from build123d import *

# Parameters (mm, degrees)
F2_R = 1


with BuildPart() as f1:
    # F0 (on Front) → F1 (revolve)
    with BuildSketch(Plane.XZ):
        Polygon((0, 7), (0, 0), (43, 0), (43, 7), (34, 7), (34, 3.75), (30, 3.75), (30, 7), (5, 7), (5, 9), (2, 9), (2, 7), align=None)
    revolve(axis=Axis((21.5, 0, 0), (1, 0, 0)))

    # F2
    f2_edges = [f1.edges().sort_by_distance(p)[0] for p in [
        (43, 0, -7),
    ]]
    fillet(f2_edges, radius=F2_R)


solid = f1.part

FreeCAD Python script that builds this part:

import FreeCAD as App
import Part
import Sketcher
from FreeCAD import Vector


def edges_at(feature, points):
    """Names of the edges that pass closest to the given points."""
    edges = feature.Shape.Edges
    near = lambda p: min(range(len(edges)), key=lambda i: edges[i].distToShape(Part.Vertex(*p))[0])
    return sorted({f"Edge{near(p) + 1}" for p in points})

doc = App.newDocument("Part")
body = doc.addObject("PartDesign::Body", "Body")

# Sketch on XZ plane
sketch1 = doc.addObject("Sketcher::SketchObject", "Sketch")
body.addObject(sketch1)
sketch1.AttachmentSupport = (doc.XZ_Plane, [""])
sketch1.MapMode = "FlatFace"
sketch1.addGeometry([
    Part.LineSegment(Vector(0, 7, 0), Vector(0, 0, 0)),  # 0
    Part.LineSegment(Vector(0, 0, 0), Vector(43, 0, 0)),  # 1
    Part.LineSegment(Vector(43, 0, 0), Vector(43, 7, 0)),  # 2
    Part.LineSegment(Vector(43, 7, 0), Vector(34, 7, 0)),  # 3
    Part.LineSegment(Vector(34, 7, 0), Vector(34, 3.8, 0)),  # 4
    Part.LineSegment(Vector(34, 3.8, 0), Vector(30, 3.8, 0)),  # 5
    Part.LineSegment(Vector(30, 3.8, 0), Vector(30, 7, 0)),  # 6
    Part.LineSegment(Vector(30, 7, 0), Vector(5, 7, 0)),  # 7
    Part.LineSegment(Vector(5, 7, 0), Vector(5, 9, 0)),  # 8
    Part.LineSegment(Vector(5, 9, 0), Vector(2, 9, 0)),  # 9
    Part.LineSegment(Vector(2, 9, 0), Vector(2, 7, 0)),  # 10
    Part.LineSegment(Vector(2, 7, 0), Vector(0, 7, 0)),  # 11
], False)
sketch1.addConstraint([
    Sketcher.Constraint("Coincident", 0, 2, 1, 1),
    Sketcher.Constraint("Coincident", 1, 2, 2, 1),
    Sketcher.Constraint("Coincident", 2, 2, 3, 1),
    Sketcher.Constraint("Coincident", 3, 2, 4, 1),
    Sketcher.Constraint("Coincident", 4, 2, 5, 1),
    Sketcher.Constraint("Coincident", 5, 2, 6, 1),
    Sketcher.Constraint("Coincident", 6, 2, 7, 1),
    Sketcher.Constraint("Coincident", 7, 2, 8, 1),
    Sketcher.Constraint("Coincident", 8, 2, 9, 1),
    Sketcher.Constraint("Coincident", 9, 2, 10, 1),
    Sketcher.Constraint("Coincident", 10, 2, 11, 1),
    Sketcher.Constraint("Coincident", 11, 2, 0, 1),
    Sketcher.Constraint("Vertical", 0),
    Sketcher.Constraint("Horizontal", 1),
    Sketcher.Constraint("Vertical", 2),
    Sketcher.Constraint("Horizontal", 3),
    Sketcher.Constraint("Vertical", 4),
    Sketcher.Constraint("Horizontal", 5),
    Sketcher.Constraint("Vertical", 6),
    Sketcher.Constraint("Horizontal", 7),
    Sketcher.Constraint("Vertical", 8),
    Sketcher.Constraint("Horizontal", 9),
    Sketcher.Constraint("Vertical", 10),
    Sketcher.Constraint("Horizontal", 11),
    Sketcher.Constraint("Coincident", 0, 2, -1, 1),
    Sketcher.Constraint("Horizontal", 3, 2, 6, 2),
    Sketcher.Constraint("Horizontal", 7, 2, 10, 2),
    Sketcher.Constraint("Equal", 11, 8),
    Sketcher.Constraint("DistanceX", 1, 1, 1, 2, 43.0),
    Sketcher.Constraint("DistanceX", 3, 2, 3, 1, 9.0),
    Sketcher.Constraint("DistanceX", 5, 2, 5, 1, 4.0),
    Sketcher.Constraint("DistanceX", 7, 2, 7, 1, 25.0),
    Sketcher.Constraint("DistanceX", 9, 2, 9, 1, 3.0),
    Sketcher.Constraint("DistanceY", 0, 2, 0, 1, 7.0),
    Sketcher.Constraint("DistanceY", 4, 2, 4, 1, 3.25),
])
revolution = doc.addObject("PartDesign::Revolution", "Revolution")
body.addObject(revolution)
revolution.Profile = sketch1
revolution.ReferenceAxis = (sketch1, ["H_Axis"])
revolution.Angle = 360
doc.recompute()

fillet = doc.addObject("PartDesign::Fillet", "Fillet")
body.addObject(fillet)
fillet.Base = (revolution, edges_at(revolution, [(43, 0, -7)]))
fillet.Radius = 1

doc.recompute()
